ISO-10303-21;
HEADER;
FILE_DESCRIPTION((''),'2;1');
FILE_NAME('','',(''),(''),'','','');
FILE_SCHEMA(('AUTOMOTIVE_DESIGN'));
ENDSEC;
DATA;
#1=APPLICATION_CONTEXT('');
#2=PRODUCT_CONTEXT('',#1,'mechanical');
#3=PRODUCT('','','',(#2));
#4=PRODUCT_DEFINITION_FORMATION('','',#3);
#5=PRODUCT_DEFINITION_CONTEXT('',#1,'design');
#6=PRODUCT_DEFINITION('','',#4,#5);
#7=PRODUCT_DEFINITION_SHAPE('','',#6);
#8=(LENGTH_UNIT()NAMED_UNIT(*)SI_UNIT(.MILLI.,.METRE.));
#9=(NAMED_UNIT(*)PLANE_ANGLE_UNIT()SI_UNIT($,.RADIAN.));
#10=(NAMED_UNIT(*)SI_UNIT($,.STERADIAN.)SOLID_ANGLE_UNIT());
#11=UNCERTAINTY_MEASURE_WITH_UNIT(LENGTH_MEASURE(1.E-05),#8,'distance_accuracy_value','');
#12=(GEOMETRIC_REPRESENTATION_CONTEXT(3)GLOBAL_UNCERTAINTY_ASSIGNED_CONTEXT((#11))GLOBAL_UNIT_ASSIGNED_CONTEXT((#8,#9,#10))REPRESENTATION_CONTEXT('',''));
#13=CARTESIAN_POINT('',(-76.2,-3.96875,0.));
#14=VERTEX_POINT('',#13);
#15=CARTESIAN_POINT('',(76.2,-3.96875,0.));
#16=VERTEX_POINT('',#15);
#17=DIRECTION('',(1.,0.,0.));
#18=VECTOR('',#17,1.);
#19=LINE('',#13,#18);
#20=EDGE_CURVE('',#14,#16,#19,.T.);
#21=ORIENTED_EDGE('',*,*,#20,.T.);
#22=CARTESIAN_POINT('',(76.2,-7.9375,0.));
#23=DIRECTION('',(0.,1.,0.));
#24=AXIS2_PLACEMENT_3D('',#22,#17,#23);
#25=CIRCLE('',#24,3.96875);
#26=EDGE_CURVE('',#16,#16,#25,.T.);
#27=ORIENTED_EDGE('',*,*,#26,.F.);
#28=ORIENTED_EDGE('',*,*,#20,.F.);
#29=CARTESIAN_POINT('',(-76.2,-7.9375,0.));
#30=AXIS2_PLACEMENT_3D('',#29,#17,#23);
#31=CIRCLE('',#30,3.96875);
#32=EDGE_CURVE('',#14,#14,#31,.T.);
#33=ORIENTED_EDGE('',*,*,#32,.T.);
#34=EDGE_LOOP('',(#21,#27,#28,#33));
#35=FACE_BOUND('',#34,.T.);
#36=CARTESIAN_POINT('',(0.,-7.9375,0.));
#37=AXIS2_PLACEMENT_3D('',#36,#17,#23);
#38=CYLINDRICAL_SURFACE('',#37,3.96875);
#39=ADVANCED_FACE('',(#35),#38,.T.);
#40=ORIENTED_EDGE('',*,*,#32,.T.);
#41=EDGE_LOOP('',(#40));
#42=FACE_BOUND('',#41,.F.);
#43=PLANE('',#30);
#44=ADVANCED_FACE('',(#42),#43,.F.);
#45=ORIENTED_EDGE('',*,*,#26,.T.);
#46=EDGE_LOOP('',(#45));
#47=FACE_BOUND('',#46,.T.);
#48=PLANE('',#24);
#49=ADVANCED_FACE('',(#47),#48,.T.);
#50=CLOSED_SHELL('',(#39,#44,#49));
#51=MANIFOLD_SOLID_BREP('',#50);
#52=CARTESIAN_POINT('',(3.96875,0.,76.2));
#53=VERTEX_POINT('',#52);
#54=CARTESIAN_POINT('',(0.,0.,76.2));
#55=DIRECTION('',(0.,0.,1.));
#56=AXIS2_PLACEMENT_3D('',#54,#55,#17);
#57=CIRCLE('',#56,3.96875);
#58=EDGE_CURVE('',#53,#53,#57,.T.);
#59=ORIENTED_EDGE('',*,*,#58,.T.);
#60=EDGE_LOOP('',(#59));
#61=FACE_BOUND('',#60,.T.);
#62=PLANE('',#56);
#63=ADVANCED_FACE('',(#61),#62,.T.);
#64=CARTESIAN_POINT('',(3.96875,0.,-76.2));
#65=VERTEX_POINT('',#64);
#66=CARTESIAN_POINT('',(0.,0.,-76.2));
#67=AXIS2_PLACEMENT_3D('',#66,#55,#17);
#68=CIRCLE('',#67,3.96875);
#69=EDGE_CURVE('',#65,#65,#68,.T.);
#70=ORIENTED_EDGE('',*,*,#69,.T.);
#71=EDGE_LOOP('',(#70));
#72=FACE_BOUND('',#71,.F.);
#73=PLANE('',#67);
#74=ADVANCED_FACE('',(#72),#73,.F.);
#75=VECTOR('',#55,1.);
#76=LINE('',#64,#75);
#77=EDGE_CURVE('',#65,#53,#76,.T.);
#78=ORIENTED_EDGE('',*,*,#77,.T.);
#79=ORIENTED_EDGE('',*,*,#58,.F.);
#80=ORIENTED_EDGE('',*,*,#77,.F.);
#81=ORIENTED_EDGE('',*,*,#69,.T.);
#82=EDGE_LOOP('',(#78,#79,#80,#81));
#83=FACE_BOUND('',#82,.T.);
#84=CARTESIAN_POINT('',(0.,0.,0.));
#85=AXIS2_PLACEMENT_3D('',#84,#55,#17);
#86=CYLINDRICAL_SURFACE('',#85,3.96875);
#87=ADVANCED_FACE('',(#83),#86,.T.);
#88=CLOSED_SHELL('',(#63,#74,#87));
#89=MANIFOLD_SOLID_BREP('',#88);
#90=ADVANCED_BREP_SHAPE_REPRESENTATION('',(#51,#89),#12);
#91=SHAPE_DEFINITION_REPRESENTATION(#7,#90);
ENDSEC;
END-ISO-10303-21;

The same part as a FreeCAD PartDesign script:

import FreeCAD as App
import Part
import Sketcher
Q = App.Units.Quantity

doc = App.newDocument("Part")
body = doc.addObject("PartDesign::Body", "Body")

# Sketch on XY plane
sketch1 = doc.addObject("Sketcher::SketchObject", "Sketch")
body.addObject(sketch1)
sketch1.AttachmentSupport = (doc.XY_Plane, [""])
sketch1.MapMode = "FlatFace"
sketch1.addGeometry(Part.Circle(App.Vector(0, 0, 0), App.Vector(0, 0, 1), 4), False)
sketch1.addConstraint([
    Sketcher.Constraint("Coincident", 0, 3, -1, 1),
    Sketcher.Constraint("Diameter", 0, Q("0.3125 in")),
])
pad1 = doc.addObject("PartDesign::Pad", "Pad")
body.addObject(pad1)
pad1.Profile = sketch1
pad1.Length = Q("6 in")
pad1.Midplane = True
body2 = doc.addObject("PartDesign::Body", "Body001")

# Sketch on YZ plane
sketch2 = doc.addObject("Sketcher::SketchObject", "Sketch001")
body2.addObject(sketch2)
sketch2.AttachmentSupport = (doc.getObject("YZ_Plane001"), [""])
sketch2.MapMode = "FlatFace"
sketch2.addGeometry(Part.Circle(App.Vector(-7.9, 0, 0), App.Vector(0, 0, 1), 4), False)
sketch2.addConstraint([
    Sketcher.Constraint("PointOnObject", 0, 3, -1),
    Sketcher.Constraint("Diameter", 0, Q("0.3125 in")),
    Sketcher.Constraint("DistanceX", 0, 3, -1, 1, Q("0.3125 in")),
])
pad2 = doc.addObject("PartDesign::Pad", "Pad001")
body2.addObject(pad2)
pad2.Profile = sketch2
pad2.Length = Q("6 in")
pad2.Midplane = True

doc.recompute()
